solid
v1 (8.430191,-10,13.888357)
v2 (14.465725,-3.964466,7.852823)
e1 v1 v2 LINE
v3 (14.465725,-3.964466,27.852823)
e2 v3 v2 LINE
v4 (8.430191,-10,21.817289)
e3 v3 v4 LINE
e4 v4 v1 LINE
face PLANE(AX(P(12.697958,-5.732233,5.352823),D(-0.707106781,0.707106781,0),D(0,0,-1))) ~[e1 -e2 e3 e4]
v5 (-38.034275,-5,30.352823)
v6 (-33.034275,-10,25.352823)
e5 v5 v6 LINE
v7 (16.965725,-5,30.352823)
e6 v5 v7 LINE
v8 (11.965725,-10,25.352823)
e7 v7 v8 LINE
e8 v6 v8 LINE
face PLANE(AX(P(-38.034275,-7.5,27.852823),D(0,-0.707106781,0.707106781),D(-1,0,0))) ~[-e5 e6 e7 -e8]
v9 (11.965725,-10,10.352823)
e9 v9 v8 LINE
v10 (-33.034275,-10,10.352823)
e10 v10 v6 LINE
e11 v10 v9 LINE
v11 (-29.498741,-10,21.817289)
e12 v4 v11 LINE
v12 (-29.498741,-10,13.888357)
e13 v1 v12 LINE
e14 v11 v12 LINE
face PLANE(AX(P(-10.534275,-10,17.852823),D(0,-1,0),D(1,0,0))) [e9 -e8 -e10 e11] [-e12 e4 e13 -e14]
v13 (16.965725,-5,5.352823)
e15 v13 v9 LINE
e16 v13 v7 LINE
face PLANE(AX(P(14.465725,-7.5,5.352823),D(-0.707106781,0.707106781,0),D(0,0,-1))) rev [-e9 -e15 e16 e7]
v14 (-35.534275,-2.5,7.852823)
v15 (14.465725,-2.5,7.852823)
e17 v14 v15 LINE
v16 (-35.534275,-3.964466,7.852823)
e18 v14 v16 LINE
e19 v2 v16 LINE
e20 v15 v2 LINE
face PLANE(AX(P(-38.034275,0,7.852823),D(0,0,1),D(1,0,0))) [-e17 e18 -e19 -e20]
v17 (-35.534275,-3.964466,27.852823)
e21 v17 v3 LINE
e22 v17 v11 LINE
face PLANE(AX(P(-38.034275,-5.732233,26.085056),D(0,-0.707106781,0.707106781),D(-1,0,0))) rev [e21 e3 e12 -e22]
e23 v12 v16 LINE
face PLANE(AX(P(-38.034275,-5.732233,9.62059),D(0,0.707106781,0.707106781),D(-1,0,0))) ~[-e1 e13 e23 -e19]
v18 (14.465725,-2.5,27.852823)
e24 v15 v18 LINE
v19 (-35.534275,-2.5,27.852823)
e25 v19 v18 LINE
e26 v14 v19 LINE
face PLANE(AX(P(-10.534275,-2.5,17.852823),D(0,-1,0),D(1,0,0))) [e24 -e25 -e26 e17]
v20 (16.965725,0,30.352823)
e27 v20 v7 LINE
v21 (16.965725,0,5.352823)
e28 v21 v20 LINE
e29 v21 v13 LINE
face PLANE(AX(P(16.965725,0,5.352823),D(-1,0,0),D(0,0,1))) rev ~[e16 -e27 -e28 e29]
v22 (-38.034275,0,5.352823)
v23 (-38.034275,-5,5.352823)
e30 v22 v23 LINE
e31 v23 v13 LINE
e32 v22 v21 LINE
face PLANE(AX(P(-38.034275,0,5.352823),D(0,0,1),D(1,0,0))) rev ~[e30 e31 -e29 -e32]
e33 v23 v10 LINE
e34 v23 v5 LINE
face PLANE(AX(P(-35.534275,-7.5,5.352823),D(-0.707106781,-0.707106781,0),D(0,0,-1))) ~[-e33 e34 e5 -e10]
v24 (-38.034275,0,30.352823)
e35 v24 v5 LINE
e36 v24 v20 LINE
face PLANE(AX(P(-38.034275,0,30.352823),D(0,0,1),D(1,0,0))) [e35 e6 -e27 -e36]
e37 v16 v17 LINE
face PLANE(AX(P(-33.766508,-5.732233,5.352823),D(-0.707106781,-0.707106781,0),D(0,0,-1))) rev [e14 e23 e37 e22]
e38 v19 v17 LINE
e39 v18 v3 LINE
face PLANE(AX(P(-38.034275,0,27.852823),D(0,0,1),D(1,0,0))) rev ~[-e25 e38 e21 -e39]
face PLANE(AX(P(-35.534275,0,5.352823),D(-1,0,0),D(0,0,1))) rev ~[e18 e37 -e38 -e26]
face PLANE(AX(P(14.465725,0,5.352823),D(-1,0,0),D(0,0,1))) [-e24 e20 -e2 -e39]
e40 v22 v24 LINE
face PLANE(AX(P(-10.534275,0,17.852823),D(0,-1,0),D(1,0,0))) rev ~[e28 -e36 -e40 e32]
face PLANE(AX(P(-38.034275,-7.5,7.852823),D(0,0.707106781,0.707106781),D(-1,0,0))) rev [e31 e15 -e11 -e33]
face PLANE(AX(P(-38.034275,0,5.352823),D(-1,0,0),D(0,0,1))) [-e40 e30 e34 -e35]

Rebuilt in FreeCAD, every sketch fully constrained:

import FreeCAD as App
import Part
import Sketcher


def edges_at(feature, points):
    """Names of the edges that pass closest to the given points."""
    edges = feature.Shape.Edges
    near = lambda p: min(range(len(edges)), key=lambda i: edges[i].distToShape(Part.Vertex(*p))[0])
    return sorted({f"Edge{near(p) + 1}" for p in points})


def faces_at(feature, points):
    """Names of the faces that lie closest to the given points."""
    faces = feature.Shape.Faces
    near = lambda p: min(range(len(faces)), key=lambda i: faces[i].distToShape(Part.Vertex(*p))[0])
    return sorted({f"Face{near(p) + 1}" for p in points})

doc = App.newDocument("Part")
params = doc.addObject("Spreadsheet::Sheet", "Params")
for row, (alias, value) in enumerate([
    ("sketch1_width", "55 mm"),
    ("sketch1_height", "25 mm"),
    ("pad1_length", "10 mm"),
    ("chamfer_size", "5 mm"),
    ("thickness_wall", "2.5 mm"),
], start=1):
    params.set(f"A{row}", alias)
    params.set(f"B{row}", "=" + value)
    params.setAlias(f"B{row}", alias)

body = doc.addObject("PartDesign::Body", "Body")

sketch1 = doc.addObject("Sketcher::SketchObject", "Sketch")
body.addObject(sketch1)
sketch1.AttachmentSupport = (doc.XZ_Plane, [""])
sketch1.MapMode = "FlatFace"
sketch1.addGeometry([
    Part.LineSegment(App.Vector(-38.034275, 30.352823, 0), App.Vector(-38.034275, 5.352823, 0)),
    Part.LineSegment(App.Vector(-38.034275, 5.352823, 0), App.Vector(16.965725, 5.352823, 0)),
    Part.LineSegment(App.Vector(16.965725, 5.352823, 0), App.Vector(16.965725, 30.352823, 0)),
    Part.LineSegment(App.Vector(16.965725, 30.352823, 0), App.Vector(-38.034275, 30.352823, 0)),
], False)
sketch1.addConstraint([
    Sketcher.Constraint("Coincident", 0, 2, 1, 1),
    Sketcher.Constraint("Coincident", 1, 2, 2, 1),
    Sketcher.Constraint("Coincident", 2, 2, 3, 1),
    Sketcher.Constraint("Coincident", 3, 2, 0, 1),
    Sketcher.Constraint("Vertical", 0),
    Sketcher.Constraint("Horizontal", 1),
    Sketcher.Constraint("Vertical", 2),
    Sketcher.Constraint("Horizontal", 3),
    Sketcher.Constraint("DistanceX", 1, 1, 1, 2, 55.0),
    Sketcher.Constraint("DistanceY", 0, 2, 0, 1, 25.0),
    Sketcher.Constraint("DistanceX", 0, 2, -1, 1, 38.034275),
    Sketcher.Constraint("DistanceY", -1, 1, 0, 2, 5.352823),
])
sketch1.setExpression("Constraints[8]", "Params.sketch1_width")
sketch1.setExpression("Constraints[9]", "Params.sketch1_height")
pad1 = doc.addObject("PartDesign::Pad", "Pad")
body.addObject(pad1)
pad1.Profile = sketch1
pad1.setExpression("Length", "Params.pad1_length")
doc.recompute()

chamfer = doc.addObject("PartDesign::Chamfer", "Chamfer")
body.addObject(chamfer)
chamfer.Base = (pad1, edges_at(pad1, [
    (-10.534, -10, 30.353),
    (-38.034, -10, 17.853),
    (-10.534, -10, 5.353),
    (16.966, -10, 17.853),
]))
chamfer.setExpression("Size", "Params.chamfer_size")
doc.recompute()

thickness = doc.addObject("PartDesign::Thickness", "Thickness")
body.addObject(thickness)
thickness.Base = (chamfer, faces_at(chamfer, [(-10.534, -10, 17.853)]))
thickness.setExpression("Value", "Params.thickness_wall")
thickness.Reversed = True
thickness.Join = "Arc"

doc.recompute()
